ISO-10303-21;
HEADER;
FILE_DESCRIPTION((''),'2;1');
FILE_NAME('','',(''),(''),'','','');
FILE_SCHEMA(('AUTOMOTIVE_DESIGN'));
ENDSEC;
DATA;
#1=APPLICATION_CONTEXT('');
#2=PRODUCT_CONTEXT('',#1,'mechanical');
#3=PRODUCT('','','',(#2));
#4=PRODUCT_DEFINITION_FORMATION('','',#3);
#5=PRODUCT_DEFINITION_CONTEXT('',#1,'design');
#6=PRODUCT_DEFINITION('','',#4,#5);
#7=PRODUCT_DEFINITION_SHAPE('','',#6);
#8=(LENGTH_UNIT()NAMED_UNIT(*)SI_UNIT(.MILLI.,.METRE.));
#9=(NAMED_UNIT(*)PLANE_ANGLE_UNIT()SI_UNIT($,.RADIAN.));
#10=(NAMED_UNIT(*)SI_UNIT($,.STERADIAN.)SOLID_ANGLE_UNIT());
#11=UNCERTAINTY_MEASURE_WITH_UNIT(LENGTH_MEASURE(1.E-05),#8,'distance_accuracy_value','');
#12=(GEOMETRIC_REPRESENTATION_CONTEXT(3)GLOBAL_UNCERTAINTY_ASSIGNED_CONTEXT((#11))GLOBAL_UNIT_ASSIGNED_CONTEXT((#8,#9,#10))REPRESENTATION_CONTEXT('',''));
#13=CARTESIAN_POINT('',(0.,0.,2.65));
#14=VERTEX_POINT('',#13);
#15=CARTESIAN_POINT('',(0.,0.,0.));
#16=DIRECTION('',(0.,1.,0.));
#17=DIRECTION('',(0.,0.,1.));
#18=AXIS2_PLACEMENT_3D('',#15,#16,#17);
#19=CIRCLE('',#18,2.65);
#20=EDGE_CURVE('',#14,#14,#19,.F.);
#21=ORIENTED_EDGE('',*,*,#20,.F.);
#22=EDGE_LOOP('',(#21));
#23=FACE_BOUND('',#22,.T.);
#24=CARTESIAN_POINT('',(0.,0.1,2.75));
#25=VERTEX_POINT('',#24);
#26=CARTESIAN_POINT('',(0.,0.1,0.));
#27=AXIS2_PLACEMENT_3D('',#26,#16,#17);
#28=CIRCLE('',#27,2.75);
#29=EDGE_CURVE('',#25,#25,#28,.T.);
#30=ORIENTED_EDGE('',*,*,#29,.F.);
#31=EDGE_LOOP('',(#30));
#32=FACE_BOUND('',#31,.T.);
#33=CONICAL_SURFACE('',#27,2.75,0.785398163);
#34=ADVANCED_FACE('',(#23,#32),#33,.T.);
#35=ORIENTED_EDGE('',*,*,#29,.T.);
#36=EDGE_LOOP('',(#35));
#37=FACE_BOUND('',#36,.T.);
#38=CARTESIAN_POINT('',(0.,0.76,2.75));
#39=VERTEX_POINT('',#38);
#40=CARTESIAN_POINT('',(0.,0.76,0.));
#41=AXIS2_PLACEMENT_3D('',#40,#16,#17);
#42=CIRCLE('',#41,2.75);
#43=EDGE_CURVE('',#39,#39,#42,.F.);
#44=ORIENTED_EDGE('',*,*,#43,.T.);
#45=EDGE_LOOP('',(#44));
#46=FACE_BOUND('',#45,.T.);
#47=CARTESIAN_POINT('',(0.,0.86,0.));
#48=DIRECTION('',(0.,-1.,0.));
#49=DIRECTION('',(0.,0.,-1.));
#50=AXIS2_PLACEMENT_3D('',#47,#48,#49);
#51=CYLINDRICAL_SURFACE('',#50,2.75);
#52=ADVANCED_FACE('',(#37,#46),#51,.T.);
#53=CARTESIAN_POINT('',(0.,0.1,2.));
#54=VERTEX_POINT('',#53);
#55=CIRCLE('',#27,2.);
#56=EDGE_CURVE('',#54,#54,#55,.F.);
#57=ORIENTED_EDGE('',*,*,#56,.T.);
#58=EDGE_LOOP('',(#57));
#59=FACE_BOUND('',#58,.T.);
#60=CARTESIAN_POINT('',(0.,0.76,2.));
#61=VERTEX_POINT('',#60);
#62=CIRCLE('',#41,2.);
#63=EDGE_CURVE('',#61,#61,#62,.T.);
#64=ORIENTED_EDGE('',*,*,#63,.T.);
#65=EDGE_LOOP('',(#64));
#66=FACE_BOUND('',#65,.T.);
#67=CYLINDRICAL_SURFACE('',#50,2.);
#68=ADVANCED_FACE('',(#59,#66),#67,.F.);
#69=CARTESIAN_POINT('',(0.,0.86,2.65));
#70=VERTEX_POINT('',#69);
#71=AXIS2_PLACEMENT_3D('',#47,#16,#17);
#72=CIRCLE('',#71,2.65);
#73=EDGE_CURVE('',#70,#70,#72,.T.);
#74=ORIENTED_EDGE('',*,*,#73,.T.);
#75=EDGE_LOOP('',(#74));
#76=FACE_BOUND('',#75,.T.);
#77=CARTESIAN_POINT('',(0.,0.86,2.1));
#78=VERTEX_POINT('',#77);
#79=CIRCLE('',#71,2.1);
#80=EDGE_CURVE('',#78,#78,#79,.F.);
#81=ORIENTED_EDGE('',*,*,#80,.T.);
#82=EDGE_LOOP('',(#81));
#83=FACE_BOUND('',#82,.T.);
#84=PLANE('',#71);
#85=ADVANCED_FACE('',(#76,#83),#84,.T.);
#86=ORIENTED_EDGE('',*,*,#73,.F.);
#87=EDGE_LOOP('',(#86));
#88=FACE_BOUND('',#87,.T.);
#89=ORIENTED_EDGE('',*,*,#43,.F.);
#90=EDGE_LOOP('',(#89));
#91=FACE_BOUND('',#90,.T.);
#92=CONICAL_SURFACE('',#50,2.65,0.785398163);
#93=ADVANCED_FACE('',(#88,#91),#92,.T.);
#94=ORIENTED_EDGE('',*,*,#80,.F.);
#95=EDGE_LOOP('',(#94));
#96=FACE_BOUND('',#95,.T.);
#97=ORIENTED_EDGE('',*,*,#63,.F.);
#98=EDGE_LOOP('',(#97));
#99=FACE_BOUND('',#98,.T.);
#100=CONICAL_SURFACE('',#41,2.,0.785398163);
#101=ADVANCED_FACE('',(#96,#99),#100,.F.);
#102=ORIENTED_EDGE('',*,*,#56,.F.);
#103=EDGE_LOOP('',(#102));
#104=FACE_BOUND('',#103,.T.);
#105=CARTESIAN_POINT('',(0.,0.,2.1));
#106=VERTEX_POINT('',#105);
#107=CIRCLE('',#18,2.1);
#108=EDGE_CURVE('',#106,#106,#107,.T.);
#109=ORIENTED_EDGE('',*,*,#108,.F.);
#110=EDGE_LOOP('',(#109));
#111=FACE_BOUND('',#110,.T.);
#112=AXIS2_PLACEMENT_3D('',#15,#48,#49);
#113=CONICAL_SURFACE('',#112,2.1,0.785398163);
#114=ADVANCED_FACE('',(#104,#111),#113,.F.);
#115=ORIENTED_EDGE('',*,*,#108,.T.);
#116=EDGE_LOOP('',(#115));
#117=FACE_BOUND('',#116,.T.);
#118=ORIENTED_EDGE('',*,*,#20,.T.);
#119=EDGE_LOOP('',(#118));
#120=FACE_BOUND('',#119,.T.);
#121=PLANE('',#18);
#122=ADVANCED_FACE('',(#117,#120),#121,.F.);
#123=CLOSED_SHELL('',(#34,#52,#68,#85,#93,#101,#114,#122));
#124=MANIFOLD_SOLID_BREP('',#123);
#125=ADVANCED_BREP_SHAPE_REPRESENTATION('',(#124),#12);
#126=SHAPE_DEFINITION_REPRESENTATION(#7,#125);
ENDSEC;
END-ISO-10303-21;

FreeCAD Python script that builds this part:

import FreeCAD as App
import Part
import Sketcher
from FreeCAD import Vector


def edges_at(feature, points):
    """Names of the edges that pass closest to the given points."""
    edges = feature.Shape.Edges
    near = lambda p: min(range(len(edges)), key=lambda i: edges[i].distToShape(Part.Vertex(*p))[0])
    return sorted({f"Edge{near(p) + 1}" for p in points})

doc = App.newDocument("Part")
params = doc.addObject("Spreadsheet::Sheet", "Params")
for row, (alias, value) in enumerate([
    ("sketch1_diameter", "4 mm"),
    ("sketch1_diameter2", "5.5 mm"),
    ("pad1_length", "0.86 mm"),
    ("chamfer_size", "0.1 mm"),
], start=1):
    params.set(f"A{row}", alias)
    params.set(f"B{row}", "=" + value)
    params.setAlias(f"B{row}", alias)

body = doc.addObject("PartDesign::Body", "Body")

sketch1 = body.newObject("Sketcher::SketchObject", "Sketch")
sketch1.AttachmentSupport = (doc.getObject("XZ_Plane"), [""])
sketch1.MapMode = "FlatFace"
sketch1.addGeometry([
    Part.Circle(Vector(0, 0, 0), Vector(0, 0, 1), 2.8),
    Part.Circle(Vector(0, 0, 0), Vector(0, 0, 1), 2),
], False)
sketch1.addConstraint([
    Sketcher.Constraint("Coincident", 0, 3, -1, 1),
    Sketcher.Constraint("Coincident", 1, 3, -1, 1),
    Sketcher.Constraint("Diameter", 1, 4.0),
    Sketcher.Constraint("Diameter", 0, 5.5),
])
sketch1.setExpression("Constraints[2]", "Params.sketch1_diameter")
sketch1.setExpression("Constraints[3]", "Params.sketch1_diameter2")
pad1 = body.newObject("PartDesign::Pad", "Pad")
pad1.Profile = sketch1
pad1.setExpression("Length", "Params.pad1_length")
pad1.Reversed = True
doc.recompute()

chamfer = body.newObject("PartDesign::Chamfer", "Chamfer")
chamfer.Base = (pad1, edges_at(pad1, [
    (-2.75, 0, 0),
    (-2.75, 0.86, 0),
    (-2, 0, 0),
    (-2, 0.86, 0),
]))
chamfer.setExpression("Size", "Params.chamfer_size")

doc.recompute()
